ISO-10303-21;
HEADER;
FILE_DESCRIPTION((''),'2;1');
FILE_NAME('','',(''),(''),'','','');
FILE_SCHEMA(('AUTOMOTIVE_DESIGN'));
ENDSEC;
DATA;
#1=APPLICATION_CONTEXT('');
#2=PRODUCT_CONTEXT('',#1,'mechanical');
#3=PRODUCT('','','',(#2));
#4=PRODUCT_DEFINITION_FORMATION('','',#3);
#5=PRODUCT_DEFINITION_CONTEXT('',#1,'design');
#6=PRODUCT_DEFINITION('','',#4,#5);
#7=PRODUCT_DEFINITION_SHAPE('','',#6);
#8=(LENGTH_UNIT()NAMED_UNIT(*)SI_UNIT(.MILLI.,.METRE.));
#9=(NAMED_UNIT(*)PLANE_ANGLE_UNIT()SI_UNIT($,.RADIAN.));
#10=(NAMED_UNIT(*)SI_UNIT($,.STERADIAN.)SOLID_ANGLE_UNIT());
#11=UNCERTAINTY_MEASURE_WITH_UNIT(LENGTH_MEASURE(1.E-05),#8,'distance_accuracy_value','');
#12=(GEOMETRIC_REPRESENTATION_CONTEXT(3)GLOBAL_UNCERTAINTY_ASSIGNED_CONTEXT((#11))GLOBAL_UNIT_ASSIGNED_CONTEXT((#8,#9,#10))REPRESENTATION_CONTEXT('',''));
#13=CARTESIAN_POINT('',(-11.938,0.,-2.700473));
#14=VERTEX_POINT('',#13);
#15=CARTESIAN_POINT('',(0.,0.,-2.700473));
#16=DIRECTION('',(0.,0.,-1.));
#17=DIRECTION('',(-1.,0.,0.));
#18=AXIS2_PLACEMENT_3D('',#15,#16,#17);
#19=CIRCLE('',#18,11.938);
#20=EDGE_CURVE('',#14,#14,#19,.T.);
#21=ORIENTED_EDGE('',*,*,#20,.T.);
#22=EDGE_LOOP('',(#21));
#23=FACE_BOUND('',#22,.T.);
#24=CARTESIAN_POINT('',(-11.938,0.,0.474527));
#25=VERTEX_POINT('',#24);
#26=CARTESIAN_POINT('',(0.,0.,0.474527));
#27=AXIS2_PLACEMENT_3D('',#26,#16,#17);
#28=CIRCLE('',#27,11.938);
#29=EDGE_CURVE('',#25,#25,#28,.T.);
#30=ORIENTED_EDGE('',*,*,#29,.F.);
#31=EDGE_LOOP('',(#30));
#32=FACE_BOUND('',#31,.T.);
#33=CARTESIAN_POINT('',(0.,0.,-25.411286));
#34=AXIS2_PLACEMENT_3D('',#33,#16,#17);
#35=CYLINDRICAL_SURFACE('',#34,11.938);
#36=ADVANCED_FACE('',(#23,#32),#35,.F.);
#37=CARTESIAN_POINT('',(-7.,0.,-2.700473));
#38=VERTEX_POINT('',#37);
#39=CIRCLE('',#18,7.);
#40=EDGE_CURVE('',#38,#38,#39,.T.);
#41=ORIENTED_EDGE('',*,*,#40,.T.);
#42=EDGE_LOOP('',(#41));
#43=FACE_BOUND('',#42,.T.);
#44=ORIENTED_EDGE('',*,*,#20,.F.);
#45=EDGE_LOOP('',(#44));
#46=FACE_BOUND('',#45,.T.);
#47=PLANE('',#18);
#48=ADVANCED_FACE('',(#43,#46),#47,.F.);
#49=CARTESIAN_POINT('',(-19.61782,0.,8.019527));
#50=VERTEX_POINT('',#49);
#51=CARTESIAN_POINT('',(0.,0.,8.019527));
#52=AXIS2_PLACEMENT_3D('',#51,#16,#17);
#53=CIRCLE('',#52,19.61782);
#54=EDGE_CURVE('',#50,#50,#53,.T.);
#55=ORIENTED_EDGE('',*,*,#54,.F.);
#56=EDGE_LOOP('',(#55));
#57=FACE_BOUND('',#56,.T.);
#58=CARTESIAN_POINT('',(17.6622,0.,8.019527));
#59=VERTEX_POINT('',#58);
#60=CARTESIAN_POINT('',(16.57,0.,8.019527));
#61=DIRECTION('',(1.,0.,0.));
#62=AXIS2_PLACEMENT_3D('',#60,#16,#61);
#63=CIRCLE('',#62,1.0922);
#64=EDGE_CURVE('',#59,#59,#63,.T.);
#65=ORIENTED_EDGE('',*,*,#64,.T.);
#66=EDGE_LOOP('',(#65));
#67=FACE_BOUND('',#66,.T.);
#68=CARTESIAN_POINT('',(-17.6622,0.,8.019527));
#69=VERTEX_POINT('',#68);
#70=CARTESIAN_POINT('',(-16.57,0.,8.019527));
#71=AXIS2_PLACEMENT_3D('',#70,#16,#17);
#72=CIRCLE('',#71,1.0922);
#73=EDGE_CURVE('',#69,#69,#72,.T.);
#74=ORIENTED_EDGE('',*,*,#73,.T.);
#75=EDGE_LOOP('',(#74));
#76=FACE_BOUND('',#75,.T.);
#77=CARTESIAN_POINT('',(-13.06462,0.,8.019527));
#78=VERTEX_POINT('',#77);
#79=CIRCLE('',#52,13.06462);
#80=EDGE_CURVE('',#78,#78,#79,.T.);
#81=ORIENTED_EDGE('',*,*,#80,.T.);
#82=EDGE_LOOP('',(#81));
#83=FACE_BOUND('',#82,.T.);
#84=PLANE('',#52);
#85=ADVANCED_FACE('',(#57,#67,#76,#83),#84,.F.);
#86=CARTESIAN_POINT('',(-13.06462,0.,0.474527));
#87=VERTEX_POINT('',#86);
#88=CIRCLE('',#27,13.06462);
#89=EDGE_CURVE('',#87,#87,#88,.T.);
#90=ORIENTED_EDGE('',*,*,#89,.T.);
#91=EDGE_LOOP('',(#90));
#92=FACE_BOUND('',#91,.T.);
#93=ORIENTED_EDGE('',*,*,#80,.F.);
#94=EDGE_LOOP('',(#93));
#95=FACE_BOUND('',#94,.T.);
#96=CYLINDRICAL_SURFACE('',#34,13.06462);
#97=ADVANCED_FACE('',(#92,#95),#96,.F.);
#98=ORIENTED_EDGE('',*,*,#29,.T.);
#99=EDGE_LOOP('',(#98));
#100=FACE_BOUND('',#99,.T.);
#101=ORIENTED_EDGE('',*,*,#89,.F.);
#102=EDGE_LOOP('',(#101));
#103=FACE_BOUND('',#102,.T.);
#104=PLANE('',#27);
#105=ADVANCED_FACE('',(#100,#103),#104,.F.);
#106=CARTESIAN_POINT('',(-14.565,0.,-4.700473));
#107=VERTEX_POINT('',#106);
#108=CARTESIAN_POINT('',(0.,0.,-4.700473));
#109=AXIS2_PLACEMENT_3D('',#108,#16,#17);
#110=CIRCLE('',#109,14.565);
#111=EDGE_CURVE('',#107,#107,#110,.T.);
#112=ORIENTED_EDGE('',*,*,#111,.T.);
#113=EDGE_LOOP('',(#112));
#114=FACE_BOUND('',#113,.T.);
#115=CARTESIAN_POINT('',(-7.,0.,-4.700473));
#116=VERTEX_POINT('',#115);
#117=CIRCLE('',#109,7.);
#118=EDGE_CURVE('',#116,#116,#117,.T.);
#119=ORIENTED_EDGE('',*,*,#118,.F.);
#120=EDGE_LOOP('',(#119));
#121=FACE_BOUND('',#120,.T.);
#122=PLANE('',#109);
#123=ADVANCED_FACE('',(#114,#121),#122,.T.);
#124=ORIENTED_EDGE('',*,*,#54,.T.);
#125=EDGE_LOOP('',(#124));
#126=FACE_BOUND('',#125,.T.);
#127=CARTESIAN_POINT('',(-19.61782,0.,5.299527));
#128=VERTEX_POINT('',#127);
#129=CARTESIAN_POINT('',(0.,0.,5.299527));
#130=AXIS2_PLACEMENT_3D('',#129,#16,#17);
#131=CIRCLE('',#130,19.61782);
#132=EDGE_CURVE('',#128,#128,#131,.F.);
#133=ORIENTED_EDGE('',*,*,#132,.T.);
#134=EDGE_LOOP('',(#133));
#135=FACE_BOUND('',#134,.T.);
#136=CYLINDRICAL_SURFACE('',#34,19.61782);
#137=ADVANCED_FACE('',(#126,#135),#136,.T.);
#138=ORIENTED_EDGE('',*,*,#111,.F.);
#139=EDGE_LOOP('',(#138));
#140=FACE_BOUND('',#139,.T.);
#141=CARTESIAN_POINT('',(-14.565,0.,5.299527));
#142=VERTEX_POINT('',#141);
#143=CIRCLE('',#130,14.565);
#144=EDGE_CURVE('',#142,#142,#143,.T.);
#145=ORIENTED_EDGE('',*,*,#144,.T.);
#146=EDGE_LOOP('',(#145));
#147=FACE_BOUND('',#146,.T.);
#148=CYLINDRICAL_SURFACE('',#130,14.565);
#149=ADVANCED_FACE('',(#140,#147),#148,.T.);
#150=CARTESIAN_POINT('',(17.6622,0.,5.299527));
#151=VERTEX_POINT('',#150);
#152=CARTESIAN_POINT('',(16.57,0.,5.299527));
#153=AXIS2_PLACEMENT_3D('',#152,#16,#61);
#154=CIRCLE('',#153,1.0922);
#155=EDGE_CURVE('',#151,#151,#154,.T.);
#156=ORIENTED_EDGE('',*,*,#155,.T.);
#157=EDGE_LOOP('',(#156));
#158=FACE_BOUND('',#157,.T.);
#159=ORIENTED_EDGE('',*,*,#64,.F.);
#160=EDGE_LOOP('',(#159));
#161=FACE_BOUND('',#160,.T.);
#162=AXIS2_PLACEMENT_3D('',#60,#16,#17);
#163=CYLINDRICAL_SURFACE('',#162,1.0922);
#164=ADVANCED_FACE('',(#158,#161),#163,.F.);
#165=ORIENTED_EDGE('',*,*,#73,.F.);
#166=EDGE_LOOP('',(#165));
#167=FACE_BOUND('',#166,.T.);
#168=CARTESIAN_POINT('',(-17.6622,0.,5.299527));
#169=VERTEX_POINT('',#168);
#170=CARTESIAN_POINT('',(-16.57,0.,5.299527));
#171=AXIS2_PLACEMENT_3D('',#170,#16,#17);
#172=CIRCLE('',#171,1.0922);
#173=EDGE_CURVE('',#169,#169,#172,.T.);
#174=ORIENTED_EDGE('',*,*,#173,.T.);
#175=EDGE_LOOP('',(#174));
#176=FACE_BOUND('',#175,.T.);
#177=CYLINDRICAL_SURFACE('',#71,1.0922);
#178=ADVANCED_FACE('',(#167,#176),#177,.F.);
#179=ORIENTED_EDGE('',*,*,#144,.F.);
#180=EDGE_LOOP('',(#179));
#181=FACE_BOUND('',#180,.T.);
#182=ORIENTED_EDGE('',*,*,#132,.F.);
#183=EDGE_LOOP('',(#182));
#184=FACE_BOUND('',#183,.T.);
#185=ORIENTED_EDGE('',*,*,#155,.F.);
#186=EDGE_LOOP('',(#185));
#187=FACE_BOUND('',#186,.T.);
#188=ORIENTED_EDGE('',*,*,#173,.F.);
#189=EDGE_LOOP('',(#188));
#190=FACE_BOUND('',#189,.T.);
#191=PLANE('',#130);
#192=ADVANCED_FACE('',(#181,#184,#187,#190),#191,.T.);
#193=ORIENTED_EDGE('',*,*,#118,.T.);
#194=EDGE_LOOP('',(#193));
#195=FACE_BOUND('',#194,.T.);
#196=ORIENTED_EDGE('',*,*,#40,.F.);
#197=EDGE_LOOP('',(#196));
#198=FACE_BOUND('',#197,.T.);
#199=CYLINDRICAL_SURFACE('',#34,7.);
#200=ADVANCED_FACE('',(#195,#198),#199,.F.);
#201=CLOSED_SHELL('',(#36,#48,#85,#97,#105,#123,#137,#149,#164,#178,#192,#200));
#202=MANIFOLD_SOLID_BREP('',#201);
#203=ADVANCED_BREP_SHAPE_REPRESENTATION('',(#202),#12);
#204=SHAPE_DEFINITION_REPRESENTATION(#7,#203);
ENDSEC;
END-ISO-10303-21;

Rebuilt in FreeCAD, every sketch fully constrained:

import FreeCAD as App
import Part
import Sketcher
from FreeCAD import Vector
Q = App.Units.Quantity


def add_polygon(sketch, points):
    """Adds a closed chain of lines whose ends are joined by coincident constraints."""
    first, n = sketch.GeometryCount, len(points)
    for a, b in zip(points, points[1:] + points[:1]):
        sketch.addGeometry(Part.LineSegment(App.Vector(*a, 0), App.Vector(*b, 0)), False)
    for i in range(n):
        sketch.addConstraint(Sketcher.Constraint("Coincident", first + i, 2, first + (i + 1) % n, 1))

doc = App.newDocument("Part")
body = doc.addObject("PartDesign::Body", "Body")

sketch1 = body.newObject("Sketcher::SketchObject", "Sketch")
sketch1.AttachmentSupport = (doc.getObject("XZ_Plane"), [""])
sketch1.MapMode = "FlatFace"
add_polygon(sketch1, [(-19.6, -4.7), (-19.6, 8), (-13.1, 8), (-13.1, 0.5), (-11.9, 0.5), (-11.9, -2.7), (-7, -2.7), (-7, -4.7)])
sketch1.addConstraint([
    Sketcher.Constraint("Vertical", 0),
    Sketcher.Constraint("Horizontal", 1),
    Sketcher.Constraint("Vertical", 2),
    Sketcher.Constraint("Horizontal", 3),
    Sketcher.Constraint("Vertical", 4),
    Sketcher.Constraint("Horizontal", 5),
    Sketcher.Constraint("Vertical", 6),
    Sketcher.Constraint("Horizontal", 7),
    Sketcher.Constraint("DistanceX", 1, 1, 1, 2, Q("0.258 in")),
    Sketcher.Constraint("DistanceY", 4, 2, 4, 1, Q("0.125 in")),
    Sketcher.Constraint("DistanceX", 3, 2, -1, 1, Q("0.47 in")),
    Sketcher.Constraint("DistanceX", 5, 1, 5, 2, 4.938),
    Sketcher.Constraint("DistanceY", 0, 1, 0, 2, 12.72),
    Sketcher.Constraint("DistanceY", 2, 2, 2, 1, 7.545),
    Sketcher.Constraint("DistanceX", 3, 1, 3, 2, 1.12662),
    Sketcher.Constraint("DistanceY", -1, 1, 0, 2, 8.019527),
])
revolution = body.newObject("PartDesign::Revolution", "Revolution")
revolution.Profile = sketch1
revolution.ReferenceAxis = (sketch1, ["V_Axis"])
revolution.Angle = 360

sketch2 = body.newObject("Sketcher::SketchObject", "Sketch001")
sketch2.AttachmentSupport = (doc.getObject("XY_Plane"), [""])
sketch2.MapMode = "FlatFace"
sketch2.AttachmentOffset = App.Placement(Vector(0, 0, -4.700473), App.Rotation())
sketch2.addGeometry([
    Part.Circle(Vector(0, 0, 0), Vector(0, 0, 1), 27),
    Part.Circle(Vector(0, 0, 0), Vector(0, 0, 1), 15),
], False)
sketch2.addConstraint([
    Sketcher.Constraint("Coincident", 0, 3, -1, 1),
    Sketcher.Constraint("Coincident", 1, 3, -1, 1),
    Sketcher.Constraint("Diameter", 1, 29.13),
    Sketcher.Constraint("Diameter", 0, 53.305533),
])
pocket1 = body.newObject("PartDesign::Pocket", "Pocket")
pocket1.Profile = sketch2
pocket1.Length = 10
pocket1.Reversed = True

sketch3 = body.newObject("Sketcher::SketchObject", "Sketch002")
sketch3.AttachmentSupport = (doc.getObject("XY_Plane"), [""])
sketch3.MapMode = "FlatFace"
sketch3.AttachmentOffset = App.Placement(Vector(0, 0, 5.299527), App.Rotation())
sketch3.addGeometry([
    Part.Circle(Vector(-16.6, 0, 0), Vector(0, 0, 1), 1.1),
    Part.Circle(Vector(16.6, 0, 0), Vector(0, 0, 1), 1.1),
], False)
sketch3.addConstraint([
    Sketcher.Constraint("Equal", 0, 1),
    Sketcher.Constraint("Symmetric", 0, 3, 1, 3, -1, 1),
    Sketcher.Constraint("PointOnObject", 0, 3, -1),
    Sketcher.Constraint("Diameter", 0, Q("0.086 in")),
    Sketcher.Constraint("DistanceX", 0, 3, -1, 1, 16.57),
])
pocket2 = body.newObject("PartDesign::Pocket", "Pocket001")
pocket2.Profile = sketch3
pocket2.Type = "ThroughAll"
pocket2.Reversed = True

doc.recompute()
